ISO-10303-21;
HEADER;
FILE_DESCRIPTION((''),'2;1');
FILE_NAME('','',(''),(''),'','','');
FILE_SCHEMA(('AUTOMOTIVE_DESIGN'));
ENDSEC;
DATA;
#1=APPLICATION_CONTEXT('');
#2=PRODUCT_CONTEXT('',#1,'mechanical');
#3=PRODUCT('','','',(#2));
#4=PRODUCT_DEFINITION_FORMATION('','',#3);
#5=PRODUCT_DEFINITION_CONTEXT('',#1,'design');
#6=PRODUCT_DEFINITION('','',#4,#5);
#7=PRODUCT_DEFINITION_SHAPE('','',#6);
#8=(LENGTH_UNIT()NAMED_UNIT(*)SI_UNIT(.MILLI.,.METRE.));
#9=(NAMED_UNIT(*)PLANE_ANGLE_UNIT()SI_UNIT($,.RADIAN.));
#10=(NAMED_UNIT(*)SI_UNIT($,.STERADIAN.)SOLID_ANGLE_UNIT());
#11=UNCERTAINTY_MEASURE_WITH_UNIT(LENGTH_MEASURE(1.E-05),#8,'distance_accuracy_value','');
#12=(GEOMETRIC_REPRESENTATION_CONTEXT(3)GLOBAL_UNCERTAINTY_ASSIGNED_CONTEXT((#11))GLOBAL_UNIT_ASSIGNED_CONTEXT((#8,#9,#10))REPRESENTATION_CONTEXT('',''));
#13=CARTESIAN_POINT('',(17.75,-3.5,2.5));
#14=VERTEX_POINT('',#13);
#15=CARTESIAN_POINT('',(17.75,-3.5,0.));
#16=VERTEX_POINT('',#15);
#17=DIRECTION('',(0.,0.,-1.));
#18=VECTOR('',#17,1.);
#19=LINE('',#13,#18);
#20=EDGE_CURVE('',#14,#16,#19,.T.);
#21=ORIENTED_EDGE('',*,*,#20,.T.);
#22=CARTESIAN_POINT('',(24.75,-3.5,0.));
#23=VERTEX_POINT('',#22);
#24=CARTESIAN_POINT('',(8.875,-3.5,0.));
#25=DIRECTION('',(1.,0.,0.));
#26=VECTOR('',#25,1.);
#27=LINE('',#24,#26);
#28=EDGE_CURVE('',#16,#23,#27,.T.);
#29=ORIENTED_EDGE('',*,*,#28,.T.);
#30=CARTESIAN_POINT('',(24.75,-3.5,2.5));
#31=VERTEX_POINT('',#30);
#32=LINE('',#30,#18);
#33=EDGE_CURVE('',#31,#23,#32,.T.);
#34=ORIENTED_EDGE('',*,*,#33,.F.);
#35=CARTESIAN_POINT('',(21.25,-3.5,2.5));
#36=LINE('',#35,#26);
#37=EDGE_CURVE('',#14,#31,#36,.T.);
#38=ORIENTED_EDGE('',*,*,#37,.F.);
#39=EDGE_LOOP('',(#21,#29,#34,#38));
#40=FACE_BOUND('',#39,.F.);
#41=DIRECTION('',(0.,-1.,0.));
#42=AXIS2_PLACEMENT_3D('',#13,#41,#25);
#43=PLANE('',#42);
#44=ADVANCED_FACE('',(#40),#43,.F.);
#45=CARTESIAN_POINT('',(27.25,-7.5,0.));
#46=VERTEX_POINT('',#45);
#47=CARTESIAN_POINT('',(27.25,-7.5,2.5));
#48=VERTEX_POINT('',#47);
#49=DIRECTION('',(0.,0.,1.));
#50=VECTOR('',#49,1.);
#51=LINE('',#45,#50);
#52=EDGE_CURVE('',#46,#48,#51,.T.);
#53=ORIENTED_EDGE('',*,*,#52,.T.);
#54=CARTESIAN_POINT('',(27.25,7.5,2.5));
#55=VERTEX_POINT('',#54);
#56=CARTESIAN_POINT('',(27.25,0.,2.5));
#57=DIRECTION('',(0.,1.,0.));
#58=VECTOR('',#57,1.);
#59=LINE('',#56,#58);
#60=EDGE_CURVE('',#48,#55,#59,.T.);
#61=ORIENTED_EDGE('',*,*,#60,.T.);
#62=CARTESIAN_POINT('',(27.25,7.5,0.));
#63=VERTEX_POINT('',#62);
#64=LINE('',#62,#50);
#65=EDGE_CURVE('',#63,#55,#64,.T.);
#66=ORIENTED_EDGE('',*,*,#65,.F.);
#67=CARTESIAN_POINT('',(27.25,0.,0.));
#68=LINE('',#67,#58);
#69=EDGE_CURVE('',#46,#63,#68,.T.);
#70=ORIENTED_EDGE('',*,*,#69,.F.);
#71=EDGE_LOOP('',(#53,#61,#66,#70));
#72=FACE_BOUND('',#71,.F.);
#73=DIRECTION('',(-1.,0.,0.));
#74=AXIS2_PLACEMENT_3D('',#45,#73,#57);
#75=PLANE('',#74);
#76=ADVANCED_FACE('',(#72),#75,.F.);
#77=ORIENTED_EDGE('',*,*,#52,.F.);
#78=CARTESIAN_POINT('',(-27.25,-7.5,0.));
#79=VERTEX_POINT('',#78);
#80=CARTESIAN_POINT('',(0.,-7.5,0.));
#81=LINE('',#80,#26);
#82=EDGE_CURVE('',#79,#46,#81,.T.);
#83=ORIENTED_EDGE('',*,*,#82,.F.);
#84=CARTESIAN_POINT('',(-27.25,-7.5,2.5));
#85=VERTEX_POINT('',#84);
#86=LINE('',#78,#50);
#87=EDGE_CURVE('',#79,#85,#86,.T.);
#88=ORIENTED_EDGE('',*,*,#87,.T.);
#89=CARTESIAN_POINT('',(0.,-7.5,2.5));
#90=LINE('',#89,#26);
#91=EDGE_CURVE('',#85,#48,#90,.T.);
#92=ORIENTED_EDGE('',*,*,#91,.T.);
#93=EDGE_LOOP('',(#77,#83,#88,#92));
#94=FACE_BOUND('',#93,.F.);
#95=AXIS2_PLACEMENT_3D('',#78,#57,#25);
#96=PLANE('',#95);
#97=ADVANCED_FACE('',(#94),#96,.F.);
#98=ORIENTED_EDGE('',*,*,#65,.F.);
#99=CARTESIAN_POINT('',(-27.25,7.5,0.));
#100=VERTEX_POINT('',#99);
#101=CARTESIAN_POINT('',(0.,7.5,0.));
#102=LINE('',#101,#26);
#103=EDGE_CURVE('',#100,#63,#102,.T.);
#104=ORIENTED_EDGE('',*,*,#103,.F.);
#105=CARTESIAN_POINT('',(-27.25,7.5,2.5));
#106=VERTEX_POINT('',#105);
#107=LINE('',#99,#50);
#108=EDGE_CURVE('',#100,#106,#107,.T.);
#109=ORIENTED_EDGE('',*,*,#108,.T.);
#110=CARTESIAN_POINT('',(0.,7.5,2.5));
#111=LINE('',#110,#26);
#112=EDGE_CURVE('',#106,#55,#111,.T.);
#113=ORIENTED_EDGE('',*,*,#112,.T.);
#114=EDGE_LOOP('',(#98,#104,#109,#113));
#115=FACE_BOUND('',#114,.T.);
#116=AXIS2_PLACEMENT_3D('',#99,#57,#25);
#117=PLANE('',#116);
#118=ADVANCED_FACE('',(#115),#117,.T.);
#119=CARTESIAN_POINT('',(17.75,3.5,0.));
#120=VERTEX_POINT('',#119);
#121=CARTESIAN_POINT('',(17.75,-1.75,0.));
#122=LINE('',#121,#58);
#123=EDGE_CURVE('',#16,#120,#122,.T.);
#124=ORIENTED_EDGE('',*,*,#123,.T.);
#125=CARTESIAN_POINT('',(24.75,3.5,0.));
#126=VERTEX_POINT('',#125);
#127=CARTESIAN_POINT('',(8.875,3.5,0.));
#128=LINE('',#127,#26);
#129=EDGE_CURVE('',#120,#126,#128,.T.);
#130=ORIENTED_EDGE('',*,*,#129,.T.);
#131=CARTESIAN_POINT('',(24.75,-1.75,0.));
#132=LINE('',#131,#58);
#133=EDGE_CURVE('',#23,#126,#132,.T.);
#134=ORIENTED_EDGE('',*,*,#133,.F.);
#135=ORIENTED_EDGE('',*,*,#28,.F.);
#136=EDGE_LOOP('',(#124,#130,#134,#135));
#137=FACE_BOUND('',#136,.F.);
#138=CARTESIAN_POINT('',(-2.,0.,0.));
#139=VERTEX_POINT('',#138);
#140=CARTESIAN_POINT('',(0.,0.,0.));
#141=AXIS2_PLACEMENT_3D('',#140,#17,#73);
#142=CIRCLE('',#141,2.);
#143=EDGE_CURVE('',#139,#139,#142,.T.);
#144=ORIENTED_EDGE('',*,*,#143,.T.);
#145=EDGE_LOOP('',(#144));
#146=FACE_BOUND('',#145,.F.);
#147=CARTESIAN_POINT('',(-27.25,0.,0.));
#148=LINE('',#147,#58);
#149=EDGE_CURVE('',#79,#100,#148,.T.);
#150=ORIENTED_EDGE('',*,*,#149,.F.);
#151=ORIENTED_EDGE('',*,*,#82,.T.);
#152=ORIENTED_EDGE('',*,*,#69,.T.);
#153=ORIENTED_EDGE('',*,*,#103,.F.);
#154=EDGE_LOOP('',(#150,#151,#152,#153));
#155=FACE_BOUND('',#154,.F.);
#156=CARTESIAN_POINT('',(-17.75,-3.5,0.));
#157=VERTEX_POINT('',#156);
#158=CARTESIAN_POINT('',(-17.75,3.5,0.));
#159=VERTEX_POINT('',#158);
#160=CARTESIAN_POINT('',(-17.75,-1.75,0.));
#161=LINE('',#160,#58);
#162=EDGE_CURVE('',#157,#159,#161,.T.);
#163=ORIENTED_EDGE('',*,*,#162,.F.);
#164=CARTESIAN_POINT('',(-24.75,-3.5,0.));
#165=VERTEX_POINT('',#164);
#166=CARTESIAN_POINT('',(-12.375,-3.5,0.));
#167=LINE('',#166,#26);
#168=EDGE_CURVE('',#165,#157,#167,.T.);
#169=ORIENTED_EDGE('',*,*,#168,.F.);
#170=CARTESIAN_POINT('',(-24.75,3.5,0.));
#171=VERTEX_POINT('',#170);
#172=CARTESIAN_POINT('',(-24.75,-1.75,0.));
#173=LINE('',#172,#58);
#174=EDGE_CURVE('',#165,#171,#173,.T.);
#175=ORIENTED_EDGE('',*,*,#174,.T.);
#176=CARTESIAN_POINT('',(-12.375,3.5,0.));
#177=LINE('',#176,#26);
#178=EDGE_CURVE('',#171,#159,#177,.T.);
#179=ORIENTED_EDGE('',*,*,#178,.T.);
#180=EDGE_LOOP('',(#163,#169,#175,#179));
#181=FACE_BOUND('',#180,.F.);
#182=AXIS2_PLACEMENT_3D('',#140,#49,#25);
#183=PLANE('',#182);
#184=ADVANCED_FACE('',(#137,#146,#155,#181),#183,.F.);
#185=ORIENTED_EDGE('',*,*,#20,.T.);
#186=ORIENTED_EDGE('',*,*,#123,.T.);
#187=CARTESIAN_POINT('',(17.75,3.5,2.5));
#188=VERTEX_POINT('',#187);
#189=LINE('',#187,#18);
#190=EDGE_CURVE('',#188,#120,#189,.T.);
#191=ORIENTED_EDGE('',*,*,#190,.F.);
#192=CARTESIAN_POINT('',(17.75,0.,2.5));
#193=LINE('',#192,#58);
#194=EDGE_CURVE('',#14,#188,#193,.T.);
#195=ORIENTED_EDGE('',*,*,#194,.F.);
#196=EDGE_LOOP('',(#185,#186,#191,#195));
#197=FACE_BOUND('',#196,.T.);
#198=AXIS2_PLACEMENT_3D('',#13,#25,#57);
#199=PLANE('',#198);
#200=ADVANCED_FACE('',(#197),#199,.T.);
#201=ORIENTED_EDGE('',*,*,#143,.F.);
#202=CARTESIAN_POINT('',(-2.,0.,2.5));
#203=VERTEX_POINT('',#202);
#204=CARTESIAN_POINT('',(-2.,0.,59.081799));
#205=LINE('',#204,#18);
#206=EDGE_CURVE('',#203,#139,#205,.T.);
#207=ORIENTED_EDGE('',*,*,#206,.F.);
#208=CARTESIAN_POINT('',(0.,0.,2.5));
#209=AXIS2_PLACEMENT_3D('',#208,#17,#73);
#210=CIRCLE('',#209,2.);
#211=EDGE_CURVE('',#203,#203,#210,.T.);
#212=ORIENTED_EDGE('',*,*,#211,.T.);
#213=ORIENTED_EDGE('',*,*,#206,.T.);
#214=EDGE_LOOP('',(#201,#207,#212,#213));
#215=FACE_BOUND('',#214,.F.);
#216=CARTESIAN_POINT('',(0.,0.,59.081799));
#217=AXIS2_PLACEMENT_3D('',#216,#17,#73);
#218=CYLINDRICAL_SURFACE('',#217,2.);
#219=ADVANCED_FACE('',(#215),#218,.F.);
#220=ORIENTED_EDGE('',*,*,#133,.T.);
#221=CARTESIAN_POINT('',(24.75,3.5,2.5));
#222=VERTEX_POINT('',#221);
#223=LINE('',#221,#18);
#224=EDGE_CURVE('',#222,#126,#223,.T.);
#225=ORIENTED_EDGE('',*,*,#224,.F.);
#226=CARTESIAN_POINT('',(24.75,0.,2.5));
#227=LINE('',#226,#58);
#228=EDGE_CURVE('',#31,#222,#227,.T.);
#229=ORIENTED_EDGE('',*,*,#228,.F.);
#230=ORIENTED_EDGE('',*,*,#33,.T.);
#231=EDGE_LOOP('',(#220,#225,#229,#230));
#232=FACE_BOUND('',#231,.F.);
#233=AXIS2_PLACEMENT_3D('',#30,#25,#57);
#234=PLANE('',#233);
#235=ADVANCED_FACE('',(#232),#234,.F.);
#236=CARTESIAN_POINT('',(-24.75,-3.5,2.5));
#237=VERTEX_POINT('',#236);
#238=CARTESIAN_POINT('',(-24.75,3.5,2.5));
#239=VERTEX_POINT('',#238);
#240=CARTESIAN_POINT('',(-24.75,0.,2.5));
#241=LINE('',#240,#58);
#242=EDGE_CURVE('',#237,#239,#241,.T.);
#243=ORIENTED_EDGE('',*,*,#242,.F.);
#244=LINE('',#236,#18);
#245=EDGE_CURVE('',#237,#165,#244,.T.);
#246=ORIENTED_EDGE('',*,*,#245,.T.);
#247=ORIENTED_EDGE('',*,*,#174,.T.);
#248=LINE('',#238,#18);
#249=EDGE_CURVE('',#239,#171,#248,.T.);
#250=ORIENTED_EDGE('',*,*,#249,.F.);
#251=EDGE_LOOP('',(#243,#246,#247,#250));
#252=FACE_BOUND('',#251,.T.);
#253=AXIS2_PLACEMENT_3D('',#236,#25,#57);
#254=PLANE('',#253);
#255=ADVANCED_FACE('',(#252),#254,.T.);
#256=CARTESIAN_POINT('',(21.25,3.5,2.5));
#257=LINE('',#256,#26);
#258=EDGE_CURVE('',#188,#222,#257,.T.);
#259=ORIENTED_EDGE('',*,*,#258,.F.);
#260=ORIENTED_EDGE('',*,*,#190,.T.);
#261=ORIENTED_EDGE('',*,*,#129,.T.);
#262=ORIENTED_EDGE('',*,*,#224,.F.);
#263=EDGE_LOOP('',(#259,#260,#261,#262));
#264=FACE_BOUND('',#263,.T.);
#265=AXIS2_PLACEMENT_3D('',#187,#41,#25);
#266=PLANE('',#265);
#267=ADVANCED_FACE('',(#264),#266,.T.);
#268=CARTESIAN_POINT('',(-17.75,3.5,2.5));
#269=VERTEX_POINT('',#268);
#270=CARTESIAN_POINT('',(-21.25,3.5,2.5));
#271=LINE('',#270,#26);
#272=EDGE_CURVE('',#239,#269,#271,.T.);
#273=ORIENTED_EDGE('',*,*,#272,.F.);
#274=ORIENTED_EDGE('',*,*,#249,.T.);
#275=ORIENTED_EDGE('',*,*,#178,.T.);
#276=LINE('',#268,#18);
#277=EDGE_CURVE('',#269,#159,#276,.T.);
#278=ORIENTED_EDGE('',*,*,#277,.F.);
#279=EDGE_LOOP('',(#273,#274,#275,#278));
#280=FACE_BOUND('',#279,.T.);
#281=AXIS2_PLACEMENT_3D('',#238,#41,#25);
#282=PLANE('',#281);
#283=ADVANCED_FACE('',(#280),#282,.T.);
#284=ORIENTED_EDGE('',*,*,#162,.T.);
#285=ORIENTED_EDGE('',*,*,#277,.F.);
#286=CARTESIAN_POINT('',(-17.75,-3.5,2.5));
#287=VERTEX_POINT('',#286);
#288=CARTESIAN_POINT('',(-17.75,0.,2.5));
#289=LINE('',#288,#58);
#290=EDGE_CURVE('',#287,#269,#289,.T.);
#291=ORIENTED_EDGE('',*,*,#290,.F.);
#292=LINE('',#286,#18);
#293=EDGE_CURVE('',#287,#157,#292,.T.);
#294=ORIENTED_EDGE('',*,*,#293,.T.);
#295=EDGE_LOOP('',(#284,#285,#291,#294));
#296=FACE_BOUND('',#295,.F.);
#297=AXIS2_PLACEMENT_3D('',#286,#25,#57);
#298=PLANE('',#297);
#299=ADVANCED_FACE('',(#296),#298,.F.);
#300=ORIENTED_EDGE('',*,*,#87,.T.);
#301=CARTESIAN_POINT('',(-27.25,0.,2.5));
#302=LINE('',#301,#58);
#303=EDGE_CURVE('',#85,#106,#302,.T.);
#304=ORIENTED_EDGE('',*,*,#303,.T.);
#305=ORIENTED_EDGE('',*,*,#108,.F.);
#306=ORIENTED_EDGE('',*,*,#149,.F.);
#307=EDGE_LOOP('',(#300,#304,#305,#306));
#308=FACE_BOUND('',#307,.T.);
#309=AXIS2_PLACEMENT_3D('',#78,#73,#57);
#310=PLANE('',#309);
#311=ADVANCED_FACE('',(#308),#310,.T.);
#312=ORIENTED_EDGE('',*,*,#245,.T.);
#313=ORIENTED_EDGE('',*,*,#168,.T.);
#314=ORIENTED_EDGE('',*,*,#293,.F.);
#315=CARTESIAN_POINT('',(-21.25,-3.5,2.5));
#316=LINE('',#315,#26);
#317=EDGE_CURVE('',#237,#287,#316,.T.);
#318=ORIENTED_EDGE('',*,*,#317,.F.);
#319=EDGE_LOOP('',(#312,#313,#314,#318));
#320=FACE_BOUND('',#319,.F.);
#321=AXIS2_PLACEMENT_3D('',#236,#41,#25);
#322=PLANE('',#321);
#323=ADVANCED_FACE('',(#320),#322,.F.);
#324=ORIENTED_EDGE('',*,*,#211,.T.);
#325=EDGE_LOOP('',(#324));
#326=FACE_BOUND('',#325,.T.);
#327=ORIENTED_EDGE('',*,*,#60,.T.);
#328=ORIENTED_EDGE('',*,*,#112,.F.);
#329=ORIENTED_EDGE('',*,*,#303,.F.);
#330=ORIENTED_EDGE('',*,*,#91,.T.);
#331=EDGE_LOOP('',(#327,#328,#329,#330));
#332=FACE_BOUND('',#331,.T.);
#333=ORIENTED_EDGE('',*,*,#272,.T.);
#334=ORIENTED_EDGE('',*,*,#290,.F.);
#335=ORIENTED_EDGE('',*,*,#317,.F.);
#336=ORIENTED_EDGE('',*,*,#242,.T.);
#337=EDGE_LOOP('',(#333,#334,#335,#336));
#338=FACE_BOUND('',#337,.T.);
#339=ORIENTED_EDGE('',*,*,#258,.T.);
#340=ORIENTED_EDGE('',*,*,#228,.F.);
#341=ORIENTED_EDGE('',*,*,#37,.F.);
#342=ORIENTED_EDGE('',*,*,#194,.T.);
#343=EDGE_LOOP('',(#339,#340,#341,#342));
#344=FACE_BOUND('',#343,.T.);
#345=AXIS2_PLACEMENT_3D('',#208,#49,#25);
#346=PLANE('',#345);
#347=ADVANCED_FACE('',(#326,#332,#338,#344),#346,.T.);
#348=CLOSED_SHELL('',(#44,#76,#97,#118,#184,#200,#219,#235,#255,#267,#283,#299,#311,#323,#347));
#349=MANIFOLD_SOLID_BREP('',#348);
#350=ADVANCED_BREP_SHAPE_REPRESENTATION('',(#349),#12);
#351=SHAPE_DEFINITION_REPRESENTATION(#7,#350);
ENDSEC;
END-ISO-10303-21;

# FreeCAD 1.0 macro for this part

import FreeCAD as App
import Part
import Sketcher
from FreeCAD import Vector
Q = App.Units.Quantity


def add_polygon(sketch, points):
    """Adds a closed chain of lines whose ends are joined by coincident constraints."""
    first, n = sketch.GeometryCount, len(points)
    for a, b in zip(points, points[1:] + points[:1]):
        sketch.addGeometry(Part.LineSegment(App.Vector(*a, 0), App.Vector(*b, 0)), False)
    for i in range(n):
        sketch.addConstraint(Sketcher.Constraint("Coincident", first + i, 2, first + (i + 1) % n, 1))

doc = App.newDocument("Part")
params = doc.addObject("Spreadsheet::Sheet", "Params")
for row, (alias, value) in enumerate([
    ("sketch1_height", "15 mm"),
    ("sketch1_width", "54.5 mm"),
    ("pad1_length", "2.5 mm"),
    ("sketch2_diameter", "4 mm"),
    ("hole_diameter", "4 mm"),
    ("sketch3_width", "7 mm"),
], start=1):
    params.set(f"A{row}", alias)
    params.set(f"B{row}", "=" + value)
    params.setAlias(f"B{row}", alias)

body = doc.addObject("PartDesign::Body", "Body")

# Sketch on XY plane
sketch1 = doc.addObject("Sketcher::SketchObject", "Sketch")
body.addObject(sketch1)
sketch1.AttachmentSupport = (doc.XY_Plane, [""])
sketch1.MapMode = "FlatFace"
add_polygon(sketch1, [(-27, 8), (-27, -8), (27, -8), (27, 8)])  # lines 0-3
sketch1.addConstraint(Sketcher.Constraint("Vertical", 0))
sketch1.addConstraint(Sketcher.Constraint("Horizontal", 1))
sketch1.addConstraint(Sketcher.Constraint("Vertical", 2))
sketch1.addConstraint(Sketcher.Constraint("Horizontal", 3))
sketch1.addConstraint(Sketcher.Constraint("Symmetric", 0, 2, 2, 2, -1, 1))
sketch1.addConstraint(Sketcher.Constraint("DistanceY", 0, 2, 0, 1, Q("15 mm")))
sketch1.addConstraint(Sketcher.Constraint("DistanceX", 1, 1, 1, 2, Q("54.5 mm")))
sketch1.setExpression("Constraints[9]", "Params.sketch1_height")
sketch1.setExpression("Constraints[10]", "Params.sketch1_width")
pad1 = doc.addObject("PartDesign::Pad", "Pad")
body.addObject(pad1)
pad1.Profile = sketch1
pad1.setExpression("Length", "Params.pad1_length")

# Sketch on XY plane
sketch2 = doc.addObject("Sketcher::SketchObject", "Sketch001")
body.addObject(sketch2)
sketch2.AttachmentSupport = (doc.XY_Plane, [""])
sketch2.MapMode = "FlatFace"
sketch2.AttachmentOffset = App.Placement(Vector(0, 0, 2.5), App.Rotation())
sketch2.addGeometry(Part.Circle(Vector(0, 0, 0), Vector(0, 0, 1), 2), False)
sketch2.addConstraint(Sketcher.Constraint("Coincident", 0, 3, -1, 1))
sketch2.addConstraint(Sketcher.Constraint("Diameter", 0, Q("4 mm")))
sketch2.setExpression("Constraints[1]", "Params.sketch2_diameter")
doc.recompute()
hole = doc.addObject("PartDesign::Hole", "Hole")
body.addObject(hole)
hole.Profile = sketch2
hole.ThreadType = "None"
hole.setExpression("Diameter", "Params.hole_diameter")
hole.DepthType = "ThroughAll"

# Sketch on XY plane
sketch3 = doc.addObject("Sketcher::SketchObject", "Sketch002")
body.addObject(sketch3)
sketch3.AttachmentSupport = (doc.XY_Plane, [""])
sketch3.MapMode = "FlatFace"
sketch3.AttachmentOffset = App.Placement(Vector(0, 0, 2.5), App.Rotation())
add_polygon(sketch3, [(-25, 4), (-25, -4), (-18, -4), (-18, 4)])  # lines 0-3
add_polygon(sketch3, [(18, 4), (18, -4), (25, -4), (25, 4)])  # lines 4-7
sketch3.addConstraint(Sketcher.Constraint("Vertical", 0))
sketch3.addConstraint(Sketcher.Constraint("Horizontal", 1))
sketch3.addConstraint(Sketcher.Constraint("Vertical", 2))
sketch3.addConstraint(Sketcher.Constraint("Horizontal", 3))
sketch3.addConstraint(Sketcher.Constraint("Vertical", 4))
sketch3.addConstraint(Sketcher.Constraint("Horizontal", 5))
sketch3.addConstraint(Sketcher.Constraint("Vertical", 6))
sketch3.addConstraint(Sketcher.Constraint("Horizontal", 7))
sketch3.addConstraint(Sketcher.Constraint("Symmetric", 2, 2, 4, 2, -1, 1))
sketch3.addConstraint(Sketcher.Constraint("Symmetric", 0, 2, 6, 2, -1, 1))
sketch3.addConstraint(Sketcher.Constraint("Horizontal", 1, 2, 4, 2))
sketch3.addConstraint(Sketcher.Constraint("Equal", 7, 0))
sketch3.addConstraint(Sketcher.Constraint("DistanceX", 1, 1, 1, 2, Q("7 mm")))
sketch3.addConstraint(Sketcher.Constraint("DistanceX", 1, 2, 4, 2, Q("35.5 mm")))
sketch3.setExpression("Constraints[20]", "Params.sketch3_width")
pocket1 = doc.addObject("PartDesign::Pocket", "Pocket")
body.addObject(pocket1)
pocket1.Profile = sketch3
pocket1.Type = "ThroughAll"

doc.recompute()
